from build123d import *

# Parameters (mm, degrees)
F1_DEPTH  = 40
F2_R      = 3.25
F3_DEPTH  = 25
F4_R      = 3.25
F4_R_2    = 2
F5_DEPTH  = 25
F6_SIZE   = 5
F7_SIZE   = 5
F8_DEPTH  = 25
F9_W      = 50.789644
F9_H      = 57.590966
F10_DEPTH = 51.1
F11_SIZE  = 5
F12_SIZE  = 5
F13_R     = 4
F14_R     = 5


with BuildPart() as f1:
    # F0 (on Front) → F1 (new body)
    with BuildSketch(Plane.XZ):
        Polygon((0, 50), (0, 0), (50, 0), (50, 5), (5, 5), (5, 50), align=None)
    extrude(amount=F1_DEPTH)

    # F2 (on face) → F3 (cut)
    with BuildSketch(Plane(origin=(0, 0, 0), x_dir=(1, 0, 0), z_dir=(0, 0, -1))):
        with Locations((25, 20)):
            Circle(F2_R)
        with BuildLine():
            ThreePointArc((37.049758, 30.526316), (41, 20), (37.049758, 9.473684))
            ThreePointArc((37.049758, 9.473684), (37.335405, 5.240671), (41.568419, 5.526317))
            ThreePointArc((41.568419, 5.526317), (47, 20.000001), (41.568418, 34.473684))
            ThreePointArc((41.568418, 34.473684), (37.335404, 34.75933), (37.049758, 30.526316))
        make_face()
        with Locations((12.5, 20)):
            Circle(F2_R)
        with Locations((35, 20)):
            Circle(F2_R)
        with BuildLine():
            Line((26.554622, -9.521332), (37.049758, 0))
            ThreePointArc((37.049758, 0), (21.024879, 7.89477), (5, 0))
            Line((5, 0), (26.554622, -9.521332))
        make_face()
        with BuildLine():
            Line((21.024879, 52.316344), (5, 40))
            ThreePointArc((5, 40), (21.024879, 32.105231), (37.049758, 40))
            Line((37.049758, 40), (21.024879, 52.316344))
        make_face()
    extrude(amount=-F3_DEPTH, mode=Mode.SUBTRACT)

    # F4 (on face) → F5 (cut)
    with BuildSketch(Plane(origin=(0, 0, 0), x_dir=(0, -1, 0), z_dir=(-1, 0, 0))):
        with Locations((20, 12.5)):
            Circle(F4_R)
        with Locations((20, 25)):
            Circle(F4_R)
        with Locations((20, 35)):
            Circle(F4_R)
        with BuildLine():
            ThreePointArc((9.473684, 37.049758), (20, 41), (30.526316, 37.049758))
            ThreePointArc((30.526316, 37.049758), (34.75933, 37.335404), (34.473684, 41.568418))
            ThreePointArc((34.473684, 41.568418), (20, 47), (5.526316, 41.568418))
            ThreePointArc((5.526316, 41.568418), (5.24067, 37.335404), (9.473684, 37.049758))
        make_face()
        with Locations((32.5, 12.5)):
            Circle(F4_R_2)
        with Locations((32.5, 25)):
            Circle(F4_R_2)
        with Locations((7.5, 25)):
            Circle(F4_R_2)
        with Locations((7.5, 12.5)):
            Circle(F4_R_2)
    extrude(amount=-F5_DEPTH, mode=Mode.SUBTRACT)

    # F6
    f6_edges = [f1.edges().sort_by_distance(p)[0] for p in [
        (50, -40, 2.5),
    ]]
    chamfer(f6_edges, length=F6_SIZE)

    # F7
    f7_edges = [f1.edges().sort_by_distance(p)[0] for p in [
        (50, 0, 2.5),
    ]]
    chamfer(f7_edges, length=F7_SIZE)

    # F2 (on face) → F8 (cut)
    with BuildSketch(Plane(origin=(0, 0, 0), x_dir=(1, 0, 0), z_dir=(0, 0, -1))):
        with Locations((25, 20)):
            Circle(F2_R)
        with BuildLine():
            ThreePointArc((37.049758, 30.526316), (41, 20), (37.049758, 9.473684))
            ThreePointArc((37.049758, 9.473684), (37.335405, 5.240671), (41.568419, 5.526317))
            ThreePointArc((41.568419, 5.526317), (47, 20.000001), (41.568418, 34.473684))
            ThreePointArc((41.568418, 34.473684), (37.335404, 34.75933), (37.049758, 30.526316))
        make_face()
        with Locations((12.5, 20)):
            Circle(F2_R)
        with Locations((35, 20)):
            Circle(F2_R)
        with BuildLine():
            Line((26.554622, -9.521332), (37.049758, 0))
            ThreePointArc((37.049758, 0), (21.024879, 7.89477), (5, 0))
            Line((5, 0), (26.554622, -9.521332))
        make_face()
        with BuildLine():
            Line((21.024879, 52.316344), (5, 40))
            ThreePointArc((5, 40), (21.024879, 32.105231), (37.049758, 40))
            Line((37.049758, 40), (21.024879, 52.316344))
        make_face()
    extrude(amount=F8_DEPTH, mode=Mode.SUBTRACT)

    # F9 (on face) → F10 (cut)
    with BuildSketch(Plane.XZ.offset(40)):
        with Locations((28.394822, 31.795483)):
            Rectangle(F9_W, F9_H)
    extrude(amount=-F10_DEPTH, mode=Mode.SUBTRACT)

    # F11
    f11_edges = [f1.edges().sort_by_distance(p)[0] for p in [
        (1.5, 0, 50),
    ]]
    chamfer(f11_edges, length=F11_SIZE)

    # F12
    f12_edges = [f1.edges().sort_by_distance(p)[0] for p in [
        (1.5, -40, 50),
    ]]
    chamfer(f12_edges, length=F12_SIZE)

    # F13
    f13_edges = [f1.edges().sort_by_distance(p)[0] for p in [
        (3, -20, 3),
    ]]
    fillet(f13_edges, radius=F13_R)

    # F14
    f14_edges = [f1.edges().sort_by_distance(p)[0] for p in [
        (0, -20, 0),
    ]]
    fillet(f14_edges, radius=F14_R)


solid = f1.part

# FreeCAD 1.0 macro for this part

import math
import FreeCAD as App
import Part
import Sketcher

V = App.Vector


def edges_at(feature, points):
    """Names of the edges that pass closest to the given points."""
    edges = feature.Shape.Edges
    near = lambda p: min(range(len(edges)), key=lambda i: edges[i].distToShape(Part.Vertex(*p))[0])
    return sorted({f"Edge{near(p) + 1}" for p in points})

doc = App.newDocument("Part")
body = doc.addObject("PartDesign::Body", "Body")

# Sketch on XZ plane
sketch1 = body.newObject("Sketcher::SketchObject", "Sketch")
sketch1.AttachmentSupport = (doc.getObject("XZ_Plane"), [""])
sketch1.MapMode = "FlatFace"
sketch1.addGeometry([
    Part.LineSegment(V(0, 50, 0), V(0, 0, 0)),  # 0
    Part.LineSegment(V(0, 0, 0), V(50, 0, 0)),  # 1
    Part.LineSegment(V(50, 0, 0), V(50, 5, 0)),  # 2
    Part.LineSegment(V(50, 5, 0), V(5, 5, 0)),  # 3
    Part.LineSegment(V(5, 5, 0), V(5, 50, 0)),  # 4
    Part.LineSegment(V(5, 50, 0), V(0, 50, 0)),  # 5
], False)
sketch1.addConstraint([
    Sketcher.Constraint("Coincident", 0, 2, 1, 1),
    Sketcher.Constraint("Coincident", 1, 2, 2, 1),
    Sketcher.Constraint("Coincident", 2, 2, 3, 1),
    Sketcher.Constraint("Coincident", 3, 2, 4, 1),
    Sketcher.Constraint("Coincident", 4, 2, 5, 1),
    Sketcher.Constraint("Coincident", 5, 2, 0, 1),
    Sketcher.Constraint("Vertical", 0),
    Sketcher.Constraint("Horizontal", 1),
    Sketcher.Constraint("Vertical", 2),
    Sketcher.Constraint("Horizontal", 3),
    Sketcher.Constraint("Vertical", 4),
    Sketcher.Constraint("Horizontal", 5),
    Sketcher.Constraint("Coincident", 0, 2, -1, 1),
    Sketcher.Constraint("Equal", 1, 0),
    Sketcher.Constraint("Equal", 5, 2),
    Sketcher.Constraint("DistanceX", 1, 1, 1, 2, 50.0),
    Sketcher.Constraint("DistanceX", 3, 2, 3, 1, 45.0),
])
pad1 = body.newObject("PartDesign::Pad", "Pad")
pad1.Profile = sketch1
pad1.Length = 40

# Sketch on XY plane
sketch2 = body.newObject("Sketcher::SketchObject", "Sketch001")
sketch2.AttachmentSupport = (doc.getObject("XY_Plane"), [""])
sketch2.MapMode = "FlatFace"
sketch2.addGeometry([
    Part.Circle(V(25, -20, 0), V(0, 0, 1), 3.2),  # 0
    Part.ArcOfCircle(Part.Circle(V(25, -20, 0), V(0, 0, 1), 16), math.radians(-41), math.radians(41)),  # 1
    Part.ArcOfCircle(Part.Circle(V(39.3, -7.5, 0), V(0, 0, 1), 3), math.radians(41), math.radians(221)),  # 2
    Part.ArcOfCircle(Part.Circle(V(25, -20, 0), V(0, 0, 1), 22), math.radians(-41), math.radians(41)),  # 3
    Part.ArcOfCircle(Part.Circle(V(39.3, -32.5, 0), V(0, 0, 1), 3), math.radians(139), math.radians(319)),  # 4
    Part.Circle(V(12.5, -20, 0), V(0, 0, 1), 3.2),  # 5
    Part.Circle(V(35, -20, 0), V(0, 0, 1), 3.2),  # 6
    Part.LineSegment(V(26.6, 9.5, 0), V(37, 0, 0)),  # 7
    Part.ArcOfCircle(Part.Circle(V(21, 12.3, 0), V(0, 0, 1), 20.2), math.radians(-142), math.radians(-38)),  # 8
    Part.LineSegment(V(5, 0, 0), V(26.6, 9.5, 0)),  # 9
    Part.LineSegment(V(21, -52.3, 0), V(5, -40, 0)),  # 10
    Part.ArcOfCircle(Part.Circle(V(21, -52.3, 0), V(0, 0, 1), 20.2), math.radians(38), math.radians(142)),  # 11
    Part.LineSegment(V(37, -40, 0), V(21, -52.3, 0)),  # 12
], False)
sketch2.addConstraint([
    Sketcher.Constraint("Tangent", 1, 2, 2, 2),
    Sketcher.Constraint("Tangent", 2, 1, 3, 2),
    Sketcher.Constraint("Tangent", 3, 1, 4, 2),
    Sketcher.Constraint("Tangent", 4, 1, 1, 1),
    Sketcher.Constraint("Coincident", 7, 2, 8, 2),
    Sketcher.Constraint("Coincident", 8, 1, 9, 1),
    Sketcher.Constraint("Coincident", 9, 2, 7, 1),
    Sketcher.Constraint("Coincident", 10, 2, 11, 2),
    Sketcher.Constraint("Coincident", 11, 1, 12, 1),
    Sketcher.Constraint("Coincident", 12, 2, 10, 1),
    Sketcher.Constraint("Coincident", 1, 3, 0, 3),
    Sketcher.Constraint("Coincident", 3, 3, 0, 3),
    Sketcher.Constraint("Coincident", 12, 2, 11, 3),
    Sketcher.Constraint("Equal", 0, 5),
    Sketcher.Constraint("Equal", 5, 6),
    Sketcher.Constraint("Equal", 8, 11),
    Sketcher.Constraint("PointOnObject", 7, 2, -1),
    Sketcher.Constraint("PointOnObject", 8, 1, -1),
    Sketcher.Constraint("Horizontal", 3, 3, 5, 3),
    Sketcher.Constraint("Horizontal", 5, 3, 6, 3),
    Sketcher.Constraint("Horizontal", 10, 2, 11, 1),
    Sketcher.Constraint("Vertical", 2, 3, 4, 3),
    Sketcher.Constraint("Vertical", 8, 3, 11, 3),
    Sketcher.Constraint("Vertical", 4, 1, 7, 2),
    Sketcher.Constraint("Vertical", 8, 1, 10, 2),
    Sketcher.Constraint("Radius", 1, 16.0),
    Sketcher.Constraint("Radius", 2, 3.0),
    Sketcher.Constraint("Diameter", 0, 6.5),
    Sketcher.Constraint("DistanceX", -1, 1, 0, 3, 25.0),
    Sketcher.Constraint("DistanceY", 0, 3, -1, 1, 20.0),
    Sketcher.Constraint("DistanceX", -1, 1, 6, 3, 35.0),
    Sketcher.Constraint("DistanceX", -1, 1, 8, 1, 5.0),
    Sketcher.Constraint("DistanceY", 10, 2, -1, 1, 40.0),
    Sketcher.Constraint("DistanceY", 4, 3, 2, 3, 24.999999),
    Sketcher.Constraint("DistanceX", -1, 1, 5, 3, 12.5),
    Sketcher.Constraint("Radius", 8, 20.211111),
    Sketcher.Constraint("Distance", 7, 14.17052),
    Sketcher.Constraint("DistanceX", -1, 1, 9, 2, 26.554622),
])
pocket1 = body.newObject("PartDesign::Pocket", "Pocket")
pocket1.Profile = sketch2
pocket1.Length = 25
pocket1.Reversed = True

# Sketch on YZ plane
sketch3 = body.newObject("Sketcher::SketchObject", "Sketch002")
sketch3.AttachmentSupport = (doc.getObject("YZ_Plane"), [""])
sketch3.MapMode = "FlatFace"
sketch3.addGeometry([
    Part.Circle(V(-20, 12.5, 0), V(0, 0, 1), 3.2),  # 0
    Part.Circle(V(-20, 25, 0), V(0, 0, 1), 3.2),  # 1
    Part.Circle(V(-20, 35, 0), V(0, 0, 1), 3.2),  # 2
    Part.ArcOfCircle(Part.Circle(V(-20, 25, 0), V(0, 0, 1), 16), math.radians(49), math.radians(131)),  # 3
    Part.ArcOfCircle(Part.Circle(V(-32.5, 39.3, 0), V(0, 0, 1), 3), math.radians(131), math.radians(311)),  # 4
    Part.ArcOfCircle(Part.Circle(V(-20, 25, 0), V(0, 0, 1), 22), math.radians(49), math.radians(131)),  # 5
    Part.ArcOfCircle(Part.Circle(V(-7.5, 39.3, 0), V(0, 0, 1), 3), math.radians(-131), math.radians(49)),  # 6
    Part.Circle(V(-32.5, 12.5, 0), V(0, 0, 1), 2),  # 7
    Part.Circle(V(-32.5, 25, 0), V(0, 0, 1), 2),  # 8
    Part.Circle(V(-7.5, 25, 0), V(0, 0, 1), 2),  # 9
    Part.Circle(V(-7.5, 12.5, 0), V(0, 0, 1), 2),  # 10
], False)
sketch3.addConstraint([
    Sketcher.Constraint("Tangent", 3, 2, 4, 2),
    Sketcher.Constraint("Tangent", 4, 1, 5, 2),
    Sketcher.Constraint("Tangent", 5, 1, 6, 2),
    Sketcher.Constraint("Tangent", 6, 1, 3, 1),
    Sketcher.Constraint("Coincident", 3, 3, 1, 3),
    Sketcher.Constraint("Coincident", 5, 3, 1, 3),
    Sketcher.Constraint("Equal", 0, 1),
    Sketcher.Constraint("Equal", 1, 2),
    Sketcher.Constraint("Equal", 7, 8),
    Sketcher.Constraint("Equal", 8, 9),
    Sketcher.Constraint("Equal", 9, 10),
    Sketcher.Constraint("Horizontal", 4, 3, 6, 3),
    Sketcher.Constraint("Horizontal", 0, 3, 7, 3),
    Sketcher.Constraint("Horizontal", 5, 3, 8, 3),
    Sketcher.Constraint("Horizontal", 8, 3, 9, 3),
    Sketcher.Constraint("Horizontal", 7, 3, 10, 3),
    Sketcher.Constraint("Vertical", 0, 3, 1, 3),
    Sketcher.Constraint("Vertical", 1, 3, 2, 3),
    Sketcher.Constraint("Vertical", 4, 3, 7, 3),
    Sketcher.Constraint("Vertical", 7, 3, 8, 3),
    Sketcher.Constraint("Vertical", 6, 3, 9, 3),
    Sketcher.Constraint("Vertical", 9, 3, 10, 3),
    Sketcher.Constraint("Diameter", 7, 4.0),
    Sketcher.Constraint("Radius", 3, 16.0),
    Sketcher.Constraint("Radius", 4, 3.0),
    Sketcher.Constraint("Diameter", 0, 6.5),
    Sketcher.Constraint("DistanceX", 0, 3, -1, 1, 20.0),
    Sketcher.Constraint("DistanceY", -1, 1, 1, 3, 25.0),
    Sketcher.Constraint("DistanceY", -1, 1, 2, 3, 35.0),
    Sketcher.Constraint("DistanceX", 4, 3, 6, 3, 25.0),
    Sketcher.Constraint("DistanceY", -1, 1, 0, 3, 12.5),
])
pocket2 = body.newObject("PartDesign::Pocket", "Pocket001")
pocket2.Profile = sketch3
pocket2.Length = 25
pocket2.Reversed = True
doc.recompute()

chamfer = body.newObject("PartDesign::Chamfer", "Chamfer")
chamfer.Base = (pocket2, edges_at(pocket2, [(50, -40, 2.5)]))
chamfer.Size = 5
doc.recompute()

chamfer2 = body.newObject("PartDesign::Chamfer", "Chamfer001")
chamfer2.Base = (chamfer, edges_at(chamfer, [(50, 0, 2.5)]))
chamfer2.Size = 5

# Sketch on XY plane
sketch4 = body.newObject("Sketcher::SketchObject", "Sketch003")
sketch4.AttachmentSupport = (doc.getObject("XY_Plane"), [""])
sketch4.MapMode = "FlatFace"
sketch4.addGeometry([
    Part.Circle(V(25, -20, 0), V(0, 0, 1), 3.2),  # 0
    Part.ArcOfCircle(Part.Circle(V(25, -20, 0), V(0, 0, 1), 16), math.radians(-41), math.radians(41)),  # 1
    Part.ArcOfCircle(Part.Circle(V(39.3, -7.5, 0), V(0, 0, 1), 3), math.radians(41), math.radians(221)),  # 2
    Part.ArcOfCircle(Part.Circle(V(25, -20, 0), V(0, 0, 1), 22), math.radians(-41), math.radians(41)),  # 3
    Part.ArcOfCircle(Part.Circle(V(39.3, -32.5, 0), V(0, 0, 1), 3), math.radians(139), math.radians(319)),  # 4
    Part.Circle(V(12.5, -20, 0), V(0, 0, 1), 3.2),  # 5
    Part.Circle(V(35, -20, 0), V(0, 0, 1), 3.2),  # 6
    Part.LineSegment(V(26.6, 9.5, 0), V(37, 0, 0)),  # 7
    Part.ArcOfCircle(Part.Circle(V(21, 12.3, 0), V(0, 0, 1), 20.2), math.radians(-142), math.radians(-38)),  # 8
    Part.LineSegment(V(5, 0, 0), V(26.6, 9.5, 0)),  # 9
    Part.LineSegment(V(21, -52.3, 0), V(5, -40, 0)),  # 10
    Part.ArcOfCircle(Part.Circle(V(21, -52.3, 0), V(0, 0, 1), 20.2), math.radians(38), math.radians(142)),  # 11
    Part.LineSegment(V(37, -40, 0), V(21, -52.3, 0)),  # 12
], False)
sketch4.addConstraint([
    Sketcher.Constraint("Tangent", 1, 2, 2, 2),
    Sketcher.Constraint("Tangent", 2, 1, 3, 2),
    Sketcher.Constraint("Tangent", 3, 1, 4, 2),
    Sketcher.Constraint("Tangent", 4, 1, 1, 1),
    Sketcher.Constraint("Coincident", 7, 2, 8, 2),
    Sketcher.Constraint("Coincident", 8, 1, 9, 1),
    Sketcher.Constraint("Coincident", 9, 2, 7, 1),
    Sketcher.Constraint("Coincident", 10, 2, 11, 2),
    Sketcher.Constraint("Coincident", 11, 1, 12, 1),
    Sketcher.Constraint("Coincident", 12, 2, 10, 1),
    Sketcher.Constraint("Coincident", 1, 3, 0, 3),
    Sketcher.Constraint("Coincident", 3, 3, 0, 3),
    Sketcher.Constraint("Coincident", 12, 2, 11, 3),
    Sketcher.Constraint("Equal", 0, 5),
    Sketcher.Constraint("Equal", 5, 6),
    Sketcher.Constraint("Equal", 8, 11),
    Sketcher.Constraint("PointOnObject", 7, 2, -1),
    Sketcher.Constraint("PointOnObject", 8, 1, -1),
    Sketcher.Constraint("Horizontal", 3, 3, 5, 3),
    Sketcher.Constraint("Horizontal", 5, 3, 6, 3),
    Sketcher.Constraint("Horizontal", 10, 2, 11, 1),
    Sketcher.Constraint("Vertical", 2, 3, 4, 3),
    Sketcher.Constraint("Vertical", 8, 3, 11, 3),
    Sketcher.Constraint("Vertical", 4, 1, 7, 2),
    Sketcher.Constraint("Vertical", 8, 1, 10, 2),
    Sketcher.Constraint("Radius", 1, 16.0),
    Sketcher.Constraint("Radius", 2, 3.0),
    Sketcher.Constraint("Diameter", 0, 6.5),
    Sketcher.Constraint("DistanceX", -1, 1, 0, 3, 25.0),
    Sketcher.Constraint("DistanceY", 0, 3, -1, 1, 20.0),
    Sketcher.Constraint("DistanceX", -1, 1, 6, 3, 35.0),
    Sketcher.Constraint("DistanceX", -1, 1, 8, 1, 5.0),
    Sketcher.Constraint("DistanceY", 10, 2, -1, 1, 40.0),
    Sketcher.Constraint("DistanceY", 4, 3, 2, 3, 24.999999),
    Sketcher.Constraint("DistanceX", -1, 1, 5, 3, 12.5),
    Sketcher.Constraint("Radius", 8, 20.211111),
    Sketcher.Constraint("Distance", 7, 14.17052),
    Sketcher.Constraint("DistanceX", -1, 1, 9, 2, 26.554622),
])
pocket3 = body.newObject("PartDesign::Pocket", "Pocket002")
pocket3.Profile = sketch4
pocket3.Length = 25

# Sketch on XZ plane
sketch5 = body.newObject("Sketcher::SketchObject", "Sketch004")
sketch5.AttachmentSupport = (doc.getObject("XZ_Plane"), [""])
sketch5.MapMode = "FlatFace"
sketch5.AttachmentOffset = App.Placement(V(0, 0, 40), App.Rotation())
sketch5.addGeometry([
    Part.LineSegment(V(3, 61, 0), V(3, 3, 0)),
    Part.LineSegment(V(3, 3, 0), V(54, 3, 0)),
    Part.LineSegment(V(54, 3, 0), V(54, 61, 0)),
    Part.LineSegment(V(54, 61, 0), V(3, 61, 0)),
], False)
sketch5.addConstraint([
    Sketcher.Constraint("Coincident", 0, 2, 1, 1),
    Sketcher.Constraint("Coincident", 1, 2, 2, 1),
    Sketcher.Constraint("Coincident", 2, 2, 3, 1),
    Sketcher.Constraint("Coincident", 3, 2, 0, 1),
    Sketcher.Constraint("Vertical", 0),
    Sketcher.Constraint("Horizontal", 1),
    Sketcher.Constraint("Vertical", 2),
    Sketcher.Constraint("Horizontal", 3),
    Sketcher.Constraint("DistanceX", -1, 1, 0, 2, 3.0),
    Sketcher.Constraint("DistanceY", -1, 1, 0, 2, 3.0),
    Sketcher.Constraint("DistanceX", 1, 1, 1, 2, 50.789644),
    Sketcher.Constraint("DistanceY", 0, 2, 0, 1, 57.590966),
])
pocket4 = body.newObject("PartDesign::Pocket", "Pocket003")
pocket4.Profile = sketch5
pocket4.Length = 51.1
doc.recompute()

chamfer3 = body.newObject("PartDesign::Chamfer", "Chamfer002")
chamfer3.Base = (pocket4, edges_at(pocket4, [(1.5, 0, 50)]))
chamfer3.Size = 5
doc.recompute()

chamfer4 = body.newObject("PartDesign::Chamfer", "Chamfer003")
chamfer4.Base = (chamfer3, edges_at(chamfer3, [(1.5, -40, 50)]))
chamfer4.Size = 5
doc.recompute()

fillet = body.newObject("PartDesign::Fillet", "Fillet")
fillet.Base = (chamfer4, edges_at(chamfer4, [(3, -20, 3)]))
fillet.Radius = 4
doc.recompute()

fillet2 = body.newObject("PartDesign::Fillet", "Fillet001")
fillet2.Base = (fillet, edges_at(fillet, [(0, -20, 0)]))
fillet2.Radius = 5

doc.recompute()
